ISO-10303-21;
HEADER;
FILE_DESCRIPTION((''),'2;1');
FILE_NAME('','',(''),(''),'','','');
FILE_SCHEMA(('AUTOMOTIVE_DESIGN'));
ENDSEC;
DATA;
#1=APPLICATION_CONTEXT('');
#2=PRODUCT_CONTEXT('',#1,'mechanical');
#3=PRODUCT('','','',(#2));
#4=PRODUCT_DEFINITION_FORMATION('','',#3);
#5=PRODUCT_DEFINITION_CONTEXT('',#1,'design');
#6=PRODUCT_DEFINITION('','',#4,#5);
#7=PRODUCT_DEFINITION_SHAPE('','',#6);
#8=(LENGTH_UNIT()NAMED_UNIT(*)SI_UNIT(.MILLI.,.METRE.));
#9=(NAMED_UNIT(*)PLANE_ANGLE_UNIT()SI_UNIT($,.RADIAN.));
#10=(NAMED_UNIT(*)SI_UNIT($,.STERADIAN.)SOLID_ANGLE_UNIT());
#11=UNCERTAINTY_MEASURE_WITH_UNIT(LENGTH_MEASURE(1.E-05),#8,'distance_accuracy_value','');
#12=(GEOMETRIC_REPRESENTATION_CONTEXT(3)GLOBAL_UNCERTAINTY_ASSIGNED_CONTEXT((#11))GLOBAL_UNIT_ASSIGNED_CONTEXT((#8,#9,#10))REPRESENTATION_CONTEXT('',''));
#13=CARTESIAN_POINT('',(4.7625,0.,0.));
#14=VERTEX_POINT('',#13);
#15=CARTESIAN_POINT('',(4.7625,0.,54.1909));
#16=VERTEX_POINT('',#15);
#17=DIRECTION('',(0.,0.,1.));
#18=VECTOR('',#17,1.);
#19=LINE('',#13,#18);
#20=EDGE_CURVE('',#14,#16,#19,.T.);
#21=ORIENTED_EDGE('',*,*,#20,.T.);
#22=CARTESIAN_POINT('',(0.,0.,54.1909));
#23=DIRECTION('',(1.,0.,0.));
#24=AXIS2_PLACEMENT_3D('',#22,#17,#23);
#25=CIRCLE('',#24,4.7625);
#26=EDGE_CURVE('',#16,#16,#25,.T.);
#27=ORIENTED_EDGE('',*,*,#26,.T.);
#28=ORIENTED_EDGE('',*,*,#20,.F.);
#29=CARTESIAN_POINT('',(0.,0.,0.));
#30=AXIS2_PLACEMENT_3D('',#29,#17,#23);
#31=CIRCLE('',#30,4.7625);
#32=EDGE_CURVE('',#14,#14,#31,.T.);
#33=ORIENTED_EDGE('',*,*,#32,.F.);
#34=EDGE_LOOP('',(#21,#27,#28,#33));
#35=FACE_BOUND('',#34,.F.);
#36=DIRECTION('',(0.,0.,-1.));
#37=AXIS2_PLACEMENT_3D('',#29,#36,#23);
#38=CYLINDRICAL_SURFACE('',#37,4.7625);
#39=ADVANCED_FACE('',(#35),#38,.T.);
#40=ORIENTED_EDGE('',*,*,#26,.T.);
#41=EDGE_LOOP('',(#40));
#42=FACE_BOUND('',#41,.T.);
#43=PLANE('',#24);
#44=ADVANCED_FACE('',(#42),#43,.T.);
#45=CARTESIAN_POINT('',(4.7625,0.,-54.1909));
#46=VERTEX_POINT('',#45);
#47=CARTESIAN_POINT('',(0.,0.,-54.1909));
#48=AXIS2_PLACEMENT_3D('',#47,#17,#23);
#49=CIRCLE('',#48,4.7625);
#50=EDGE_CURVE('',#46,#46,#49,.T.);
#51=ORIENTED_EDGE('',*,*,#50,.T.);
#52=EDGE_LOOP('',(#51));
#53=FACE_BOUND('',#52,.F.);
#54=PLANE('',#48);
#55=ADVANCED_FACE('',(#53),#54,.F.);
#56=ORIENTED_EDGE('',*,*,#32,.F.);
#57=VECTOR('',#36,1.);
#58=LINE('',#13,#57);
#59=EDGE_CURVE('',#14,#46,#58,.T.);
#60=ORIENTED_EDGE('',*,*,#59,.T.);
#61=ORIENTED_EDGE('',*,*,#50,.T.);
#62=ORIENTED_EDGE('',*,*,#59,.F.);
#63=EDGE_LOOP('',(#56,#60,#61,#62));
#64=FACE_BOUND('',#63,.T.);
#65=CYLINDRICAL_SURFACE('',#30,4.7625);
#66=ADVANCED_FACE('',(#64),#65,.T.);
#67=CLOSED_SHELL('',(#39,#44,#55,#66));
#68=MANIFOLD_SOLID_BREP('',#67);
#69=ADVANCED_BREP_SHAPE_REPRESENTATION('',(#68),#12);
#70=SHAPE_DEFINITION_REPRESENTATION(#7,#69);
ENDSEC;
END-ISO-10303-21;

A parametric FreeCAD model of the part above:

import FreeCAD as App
import Part
import Sketcher
Q = App.Units.Quantity

doc = App.newDocument("Part")
body = doc.addObject("PartDesign::Body", "Body")

sketch1 = body.newObject("Sketcher::SketchObject", "Sketch")
sketch1.AttachmentSupport = (doc.getObject("XY_Plane"), [""])
sketch1.MapMode = "FlatFace"
sketch1.addGeometry(Part.Circle(App.Vector(0, 0, 0), App.Vector(0, 0, 1), 4.8), False)
sketch1.addConstraint(Sketcher.Constraint("Coincident", 0, 3, -1, 1))
sketch1.addConstraint(Sketcher.Constraint("Diameter", 0, Q("0.375 in")))
pad1 = body.newObject("PartDesign::Pad", "Pad")
pad1.Profile = sketch1
pad1.Length = Q("4.267 in")
pad1.Midplane = True

doc.recompute()
